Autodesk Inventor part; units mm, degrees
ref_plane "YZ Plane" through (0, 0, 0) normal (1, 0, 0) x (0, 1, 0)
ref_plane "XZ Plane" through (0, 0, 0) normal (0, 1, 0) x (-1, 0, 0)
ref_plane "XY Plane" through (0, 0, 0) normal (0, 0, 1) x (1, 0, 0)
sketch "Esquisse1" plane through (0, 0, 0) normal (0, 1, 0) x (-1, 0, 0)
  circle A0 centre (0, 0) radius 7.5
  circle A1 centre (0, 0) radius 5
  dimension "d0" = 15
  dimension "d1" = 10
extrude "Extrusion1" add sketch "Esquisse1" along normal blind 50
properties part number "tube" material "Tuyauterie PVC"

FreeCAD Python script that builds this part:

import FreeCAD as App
import Part
import Sketcher
from FreeCAD import Vector

doc = App.newDocument("Part")
params = doc.addObject("Spreadsheet::Sheet", "Params")
for row, (alias, value) in enumerate([
    ("sketch1_diameter", "15 mm"),
    ("sketch1_diameter2", "10 mm"),
    ("pad1_length", "50 mm"),
], start=1):
    params.set(f"A{row}", alias)
    params.set(f"B{row}", "=" + value)
    params.setAlias(f"B{row}", alias)

body = doc.addObject("PartDesign::Body", "Body")

# Sketch on XZ plane
sketch1 = body.newObject("Sketcher::SketchObject", "Sketch")
sketch1.AttachmentSupport = (doc.getObject("XZ_Plane"), [""])
sketch1.MapMode = "FlatFace"
sketch1.addGeometry(Part.Circle(Vector(0, 0, 0), Vector(0, 0, 1), 8), False)
sketch1.addGeometry(Part.Circle(Vector(0, 0, 0), Vector(0, 0, 1), 5), False)
sketch1.addConstraint(Sketcher.Constraint("Coincident", 0, 3, -1, 1))
sketch1.addConstraint(Sketcher.Constraint("Coincident", 1, 3, -1, 1))
sketch1.addConstraint(Sketcher.Constraint("Diameter", 0, 15.0))
sketch1.addConstraint(Sketcher.Constraint("Diameter", 1, 10.0))
sketch1.setExpression("Constraints[2]", "Params.sketch1_diameter")
sketch1.setExpression("Constraints[3]", "Params.sketch1_diameter2")
pad1 = body.newObject("PartDesign::Pad", "Pad")
pad1.Profile = sketch1
pad1.setExpression("Length", "Params.pad1_length")
pad1.Reversed = True

doc.recompute()
